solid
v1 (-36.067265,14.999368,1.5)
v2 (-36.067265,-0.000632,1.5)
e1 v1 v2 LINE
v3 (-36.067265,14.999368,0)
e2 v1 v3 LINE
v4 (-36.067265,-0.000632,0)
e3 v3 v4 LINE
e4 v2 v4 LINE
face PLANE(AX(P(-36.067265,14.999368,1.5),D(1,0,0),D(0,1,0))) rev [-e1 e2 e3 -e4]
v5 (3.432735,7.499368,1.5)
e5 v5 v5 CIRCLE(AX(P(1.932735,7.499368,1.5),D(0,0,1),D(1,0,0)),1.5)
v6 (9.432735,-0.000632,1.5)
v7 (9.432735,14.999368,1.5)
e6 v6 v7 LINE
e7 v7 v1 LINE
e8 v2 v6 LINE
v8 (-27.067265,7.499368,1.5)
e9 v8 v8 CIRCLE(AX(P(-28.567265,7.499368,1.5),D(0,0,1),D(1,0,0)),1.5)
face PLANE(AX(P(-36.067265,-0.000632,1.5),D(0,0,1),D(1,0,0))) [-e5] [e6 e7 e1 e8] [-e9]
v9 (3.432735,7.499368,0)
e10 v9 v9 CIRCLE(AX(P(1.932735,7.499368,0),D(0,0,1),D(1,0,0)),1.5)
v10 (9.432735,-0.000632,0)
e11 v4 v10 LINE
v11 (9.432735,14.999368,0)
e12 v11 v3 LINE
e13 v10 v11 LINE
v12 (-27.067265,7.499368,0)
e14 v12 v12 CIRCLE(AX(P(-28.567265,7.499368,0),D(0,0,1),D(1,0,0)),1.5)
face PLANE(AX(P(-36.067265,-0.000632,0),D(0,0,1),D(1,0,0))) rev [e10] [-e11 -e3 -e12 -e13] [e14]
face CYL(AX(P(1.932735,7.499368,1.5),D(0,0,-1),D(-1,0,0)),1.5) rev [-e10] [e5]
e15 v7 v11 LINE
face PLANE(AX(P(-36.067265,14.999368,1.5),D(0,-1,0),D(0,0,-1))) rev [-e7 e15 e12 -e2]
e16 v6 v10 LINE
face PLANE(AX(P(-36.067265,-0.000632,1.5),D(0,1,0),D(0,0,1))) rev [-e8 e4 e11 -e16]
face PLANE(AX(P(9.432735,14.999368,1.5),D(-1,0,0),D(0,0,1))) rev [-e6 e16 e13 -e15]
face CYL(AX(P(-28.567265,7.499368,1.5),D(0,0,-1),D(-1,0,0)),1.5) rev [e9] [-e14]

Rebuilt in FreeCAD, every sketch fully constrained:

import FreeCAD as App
import Part
import Sketcher

V = App.Vector


def add_polygon(sketch, points):
    """Adds a closed chain of lines whose ends are joined by coincident constraints."""
    first, n = sketch.GeometryCount, len(points)
    for a, b in zip(points, points[1:] + points[:1]):
        sketch.addGeometry(Part.LineSegment(App.Vector(*a, 0), App.Vector(*b, 0)), False)
    for i in range(n):
        sketch.addConstraint(Sketcher.Constraint("Coincident", first + i, 2, first + (i + 1) % n, 1))

doc = App.newDocument("Part")
body = doc.addObject("PartDesign::Body", "Body")

# Sketch on XY plane
sketch1 = body.newObject("Sketcher::SketchObject", "Sketch")
sketch1.AttachmentSupport = (doc.getObject("XY_Plane"), [""])
sketch1.MapMode = "FlatFace"
add_polygon(sketch1, [(-36.1, 15), (-36.1, 0), (9.4, 0), (9.4, 15)])  # lines 0-3
sketch1.addGeometry(Part.Circle(V(-28.6, 7.5, 0), V(0, 0, 1), 1.5), False)  # 4
sketch1.addGeometry(Part.Circle(V(1.9, 7.5, 0), V(0, 0, 1), 1.5), False)  # 5
sketch1.addConstraint(Sketcher.Constraint("Vertical", 0))
sketch1.addConstraint(Sketcher.Constraint("Horizontal", 1))
sketch1.addConstraint(Sketcher.Constraint("Vertical", 2))
sketch1.addConstraint(Sketcher.Constraint("Horizontal", 3))
sketch1.addConstraint(Sketcher.Constraint("Equal", 4, 5))
sketch1.addConstraint(Sketcher.Constraint("Horizontal", 4, 3, 5, 3))
sketch1.addConstraint(Sketcher.Constraint("Diameter", 4, 3.0))
sketch1.addConstraint(Sketcher.Constraint("DistanceY", 0, 2, 0, 1, 15.0))
sketch1.addConstraint(Sketcher.Constraint("DistanceX", 1, 1, 1, 2, 45.5))
sketch1.addConstraint(Sketcher.Constraint("DistanceX", 0, 2, 5, 3, 38.0))
sketch1.addConstraint(Sketcher.Constraint("DistanceX", 4, 3, 1, 2, 38.0))
sketch1.addConstraint(Sketcher.Constraint("DistanceY", 0, 2, 4, 3, 7.5))
sketch1.addConstraint(Sketcher.Constraint("DistanceY", -1, 1, 4, 3, 7.499368))
sketch1.addConstraint(Sketcher.Constraint("DistanceX", 4, 3, -1, 1, 28.567265))
pad1 = body.newObject("PartDesign::Pad", "Pad")
pad1.Profile = sketch1
pad1.Length = 1.5

doc.recompute()
